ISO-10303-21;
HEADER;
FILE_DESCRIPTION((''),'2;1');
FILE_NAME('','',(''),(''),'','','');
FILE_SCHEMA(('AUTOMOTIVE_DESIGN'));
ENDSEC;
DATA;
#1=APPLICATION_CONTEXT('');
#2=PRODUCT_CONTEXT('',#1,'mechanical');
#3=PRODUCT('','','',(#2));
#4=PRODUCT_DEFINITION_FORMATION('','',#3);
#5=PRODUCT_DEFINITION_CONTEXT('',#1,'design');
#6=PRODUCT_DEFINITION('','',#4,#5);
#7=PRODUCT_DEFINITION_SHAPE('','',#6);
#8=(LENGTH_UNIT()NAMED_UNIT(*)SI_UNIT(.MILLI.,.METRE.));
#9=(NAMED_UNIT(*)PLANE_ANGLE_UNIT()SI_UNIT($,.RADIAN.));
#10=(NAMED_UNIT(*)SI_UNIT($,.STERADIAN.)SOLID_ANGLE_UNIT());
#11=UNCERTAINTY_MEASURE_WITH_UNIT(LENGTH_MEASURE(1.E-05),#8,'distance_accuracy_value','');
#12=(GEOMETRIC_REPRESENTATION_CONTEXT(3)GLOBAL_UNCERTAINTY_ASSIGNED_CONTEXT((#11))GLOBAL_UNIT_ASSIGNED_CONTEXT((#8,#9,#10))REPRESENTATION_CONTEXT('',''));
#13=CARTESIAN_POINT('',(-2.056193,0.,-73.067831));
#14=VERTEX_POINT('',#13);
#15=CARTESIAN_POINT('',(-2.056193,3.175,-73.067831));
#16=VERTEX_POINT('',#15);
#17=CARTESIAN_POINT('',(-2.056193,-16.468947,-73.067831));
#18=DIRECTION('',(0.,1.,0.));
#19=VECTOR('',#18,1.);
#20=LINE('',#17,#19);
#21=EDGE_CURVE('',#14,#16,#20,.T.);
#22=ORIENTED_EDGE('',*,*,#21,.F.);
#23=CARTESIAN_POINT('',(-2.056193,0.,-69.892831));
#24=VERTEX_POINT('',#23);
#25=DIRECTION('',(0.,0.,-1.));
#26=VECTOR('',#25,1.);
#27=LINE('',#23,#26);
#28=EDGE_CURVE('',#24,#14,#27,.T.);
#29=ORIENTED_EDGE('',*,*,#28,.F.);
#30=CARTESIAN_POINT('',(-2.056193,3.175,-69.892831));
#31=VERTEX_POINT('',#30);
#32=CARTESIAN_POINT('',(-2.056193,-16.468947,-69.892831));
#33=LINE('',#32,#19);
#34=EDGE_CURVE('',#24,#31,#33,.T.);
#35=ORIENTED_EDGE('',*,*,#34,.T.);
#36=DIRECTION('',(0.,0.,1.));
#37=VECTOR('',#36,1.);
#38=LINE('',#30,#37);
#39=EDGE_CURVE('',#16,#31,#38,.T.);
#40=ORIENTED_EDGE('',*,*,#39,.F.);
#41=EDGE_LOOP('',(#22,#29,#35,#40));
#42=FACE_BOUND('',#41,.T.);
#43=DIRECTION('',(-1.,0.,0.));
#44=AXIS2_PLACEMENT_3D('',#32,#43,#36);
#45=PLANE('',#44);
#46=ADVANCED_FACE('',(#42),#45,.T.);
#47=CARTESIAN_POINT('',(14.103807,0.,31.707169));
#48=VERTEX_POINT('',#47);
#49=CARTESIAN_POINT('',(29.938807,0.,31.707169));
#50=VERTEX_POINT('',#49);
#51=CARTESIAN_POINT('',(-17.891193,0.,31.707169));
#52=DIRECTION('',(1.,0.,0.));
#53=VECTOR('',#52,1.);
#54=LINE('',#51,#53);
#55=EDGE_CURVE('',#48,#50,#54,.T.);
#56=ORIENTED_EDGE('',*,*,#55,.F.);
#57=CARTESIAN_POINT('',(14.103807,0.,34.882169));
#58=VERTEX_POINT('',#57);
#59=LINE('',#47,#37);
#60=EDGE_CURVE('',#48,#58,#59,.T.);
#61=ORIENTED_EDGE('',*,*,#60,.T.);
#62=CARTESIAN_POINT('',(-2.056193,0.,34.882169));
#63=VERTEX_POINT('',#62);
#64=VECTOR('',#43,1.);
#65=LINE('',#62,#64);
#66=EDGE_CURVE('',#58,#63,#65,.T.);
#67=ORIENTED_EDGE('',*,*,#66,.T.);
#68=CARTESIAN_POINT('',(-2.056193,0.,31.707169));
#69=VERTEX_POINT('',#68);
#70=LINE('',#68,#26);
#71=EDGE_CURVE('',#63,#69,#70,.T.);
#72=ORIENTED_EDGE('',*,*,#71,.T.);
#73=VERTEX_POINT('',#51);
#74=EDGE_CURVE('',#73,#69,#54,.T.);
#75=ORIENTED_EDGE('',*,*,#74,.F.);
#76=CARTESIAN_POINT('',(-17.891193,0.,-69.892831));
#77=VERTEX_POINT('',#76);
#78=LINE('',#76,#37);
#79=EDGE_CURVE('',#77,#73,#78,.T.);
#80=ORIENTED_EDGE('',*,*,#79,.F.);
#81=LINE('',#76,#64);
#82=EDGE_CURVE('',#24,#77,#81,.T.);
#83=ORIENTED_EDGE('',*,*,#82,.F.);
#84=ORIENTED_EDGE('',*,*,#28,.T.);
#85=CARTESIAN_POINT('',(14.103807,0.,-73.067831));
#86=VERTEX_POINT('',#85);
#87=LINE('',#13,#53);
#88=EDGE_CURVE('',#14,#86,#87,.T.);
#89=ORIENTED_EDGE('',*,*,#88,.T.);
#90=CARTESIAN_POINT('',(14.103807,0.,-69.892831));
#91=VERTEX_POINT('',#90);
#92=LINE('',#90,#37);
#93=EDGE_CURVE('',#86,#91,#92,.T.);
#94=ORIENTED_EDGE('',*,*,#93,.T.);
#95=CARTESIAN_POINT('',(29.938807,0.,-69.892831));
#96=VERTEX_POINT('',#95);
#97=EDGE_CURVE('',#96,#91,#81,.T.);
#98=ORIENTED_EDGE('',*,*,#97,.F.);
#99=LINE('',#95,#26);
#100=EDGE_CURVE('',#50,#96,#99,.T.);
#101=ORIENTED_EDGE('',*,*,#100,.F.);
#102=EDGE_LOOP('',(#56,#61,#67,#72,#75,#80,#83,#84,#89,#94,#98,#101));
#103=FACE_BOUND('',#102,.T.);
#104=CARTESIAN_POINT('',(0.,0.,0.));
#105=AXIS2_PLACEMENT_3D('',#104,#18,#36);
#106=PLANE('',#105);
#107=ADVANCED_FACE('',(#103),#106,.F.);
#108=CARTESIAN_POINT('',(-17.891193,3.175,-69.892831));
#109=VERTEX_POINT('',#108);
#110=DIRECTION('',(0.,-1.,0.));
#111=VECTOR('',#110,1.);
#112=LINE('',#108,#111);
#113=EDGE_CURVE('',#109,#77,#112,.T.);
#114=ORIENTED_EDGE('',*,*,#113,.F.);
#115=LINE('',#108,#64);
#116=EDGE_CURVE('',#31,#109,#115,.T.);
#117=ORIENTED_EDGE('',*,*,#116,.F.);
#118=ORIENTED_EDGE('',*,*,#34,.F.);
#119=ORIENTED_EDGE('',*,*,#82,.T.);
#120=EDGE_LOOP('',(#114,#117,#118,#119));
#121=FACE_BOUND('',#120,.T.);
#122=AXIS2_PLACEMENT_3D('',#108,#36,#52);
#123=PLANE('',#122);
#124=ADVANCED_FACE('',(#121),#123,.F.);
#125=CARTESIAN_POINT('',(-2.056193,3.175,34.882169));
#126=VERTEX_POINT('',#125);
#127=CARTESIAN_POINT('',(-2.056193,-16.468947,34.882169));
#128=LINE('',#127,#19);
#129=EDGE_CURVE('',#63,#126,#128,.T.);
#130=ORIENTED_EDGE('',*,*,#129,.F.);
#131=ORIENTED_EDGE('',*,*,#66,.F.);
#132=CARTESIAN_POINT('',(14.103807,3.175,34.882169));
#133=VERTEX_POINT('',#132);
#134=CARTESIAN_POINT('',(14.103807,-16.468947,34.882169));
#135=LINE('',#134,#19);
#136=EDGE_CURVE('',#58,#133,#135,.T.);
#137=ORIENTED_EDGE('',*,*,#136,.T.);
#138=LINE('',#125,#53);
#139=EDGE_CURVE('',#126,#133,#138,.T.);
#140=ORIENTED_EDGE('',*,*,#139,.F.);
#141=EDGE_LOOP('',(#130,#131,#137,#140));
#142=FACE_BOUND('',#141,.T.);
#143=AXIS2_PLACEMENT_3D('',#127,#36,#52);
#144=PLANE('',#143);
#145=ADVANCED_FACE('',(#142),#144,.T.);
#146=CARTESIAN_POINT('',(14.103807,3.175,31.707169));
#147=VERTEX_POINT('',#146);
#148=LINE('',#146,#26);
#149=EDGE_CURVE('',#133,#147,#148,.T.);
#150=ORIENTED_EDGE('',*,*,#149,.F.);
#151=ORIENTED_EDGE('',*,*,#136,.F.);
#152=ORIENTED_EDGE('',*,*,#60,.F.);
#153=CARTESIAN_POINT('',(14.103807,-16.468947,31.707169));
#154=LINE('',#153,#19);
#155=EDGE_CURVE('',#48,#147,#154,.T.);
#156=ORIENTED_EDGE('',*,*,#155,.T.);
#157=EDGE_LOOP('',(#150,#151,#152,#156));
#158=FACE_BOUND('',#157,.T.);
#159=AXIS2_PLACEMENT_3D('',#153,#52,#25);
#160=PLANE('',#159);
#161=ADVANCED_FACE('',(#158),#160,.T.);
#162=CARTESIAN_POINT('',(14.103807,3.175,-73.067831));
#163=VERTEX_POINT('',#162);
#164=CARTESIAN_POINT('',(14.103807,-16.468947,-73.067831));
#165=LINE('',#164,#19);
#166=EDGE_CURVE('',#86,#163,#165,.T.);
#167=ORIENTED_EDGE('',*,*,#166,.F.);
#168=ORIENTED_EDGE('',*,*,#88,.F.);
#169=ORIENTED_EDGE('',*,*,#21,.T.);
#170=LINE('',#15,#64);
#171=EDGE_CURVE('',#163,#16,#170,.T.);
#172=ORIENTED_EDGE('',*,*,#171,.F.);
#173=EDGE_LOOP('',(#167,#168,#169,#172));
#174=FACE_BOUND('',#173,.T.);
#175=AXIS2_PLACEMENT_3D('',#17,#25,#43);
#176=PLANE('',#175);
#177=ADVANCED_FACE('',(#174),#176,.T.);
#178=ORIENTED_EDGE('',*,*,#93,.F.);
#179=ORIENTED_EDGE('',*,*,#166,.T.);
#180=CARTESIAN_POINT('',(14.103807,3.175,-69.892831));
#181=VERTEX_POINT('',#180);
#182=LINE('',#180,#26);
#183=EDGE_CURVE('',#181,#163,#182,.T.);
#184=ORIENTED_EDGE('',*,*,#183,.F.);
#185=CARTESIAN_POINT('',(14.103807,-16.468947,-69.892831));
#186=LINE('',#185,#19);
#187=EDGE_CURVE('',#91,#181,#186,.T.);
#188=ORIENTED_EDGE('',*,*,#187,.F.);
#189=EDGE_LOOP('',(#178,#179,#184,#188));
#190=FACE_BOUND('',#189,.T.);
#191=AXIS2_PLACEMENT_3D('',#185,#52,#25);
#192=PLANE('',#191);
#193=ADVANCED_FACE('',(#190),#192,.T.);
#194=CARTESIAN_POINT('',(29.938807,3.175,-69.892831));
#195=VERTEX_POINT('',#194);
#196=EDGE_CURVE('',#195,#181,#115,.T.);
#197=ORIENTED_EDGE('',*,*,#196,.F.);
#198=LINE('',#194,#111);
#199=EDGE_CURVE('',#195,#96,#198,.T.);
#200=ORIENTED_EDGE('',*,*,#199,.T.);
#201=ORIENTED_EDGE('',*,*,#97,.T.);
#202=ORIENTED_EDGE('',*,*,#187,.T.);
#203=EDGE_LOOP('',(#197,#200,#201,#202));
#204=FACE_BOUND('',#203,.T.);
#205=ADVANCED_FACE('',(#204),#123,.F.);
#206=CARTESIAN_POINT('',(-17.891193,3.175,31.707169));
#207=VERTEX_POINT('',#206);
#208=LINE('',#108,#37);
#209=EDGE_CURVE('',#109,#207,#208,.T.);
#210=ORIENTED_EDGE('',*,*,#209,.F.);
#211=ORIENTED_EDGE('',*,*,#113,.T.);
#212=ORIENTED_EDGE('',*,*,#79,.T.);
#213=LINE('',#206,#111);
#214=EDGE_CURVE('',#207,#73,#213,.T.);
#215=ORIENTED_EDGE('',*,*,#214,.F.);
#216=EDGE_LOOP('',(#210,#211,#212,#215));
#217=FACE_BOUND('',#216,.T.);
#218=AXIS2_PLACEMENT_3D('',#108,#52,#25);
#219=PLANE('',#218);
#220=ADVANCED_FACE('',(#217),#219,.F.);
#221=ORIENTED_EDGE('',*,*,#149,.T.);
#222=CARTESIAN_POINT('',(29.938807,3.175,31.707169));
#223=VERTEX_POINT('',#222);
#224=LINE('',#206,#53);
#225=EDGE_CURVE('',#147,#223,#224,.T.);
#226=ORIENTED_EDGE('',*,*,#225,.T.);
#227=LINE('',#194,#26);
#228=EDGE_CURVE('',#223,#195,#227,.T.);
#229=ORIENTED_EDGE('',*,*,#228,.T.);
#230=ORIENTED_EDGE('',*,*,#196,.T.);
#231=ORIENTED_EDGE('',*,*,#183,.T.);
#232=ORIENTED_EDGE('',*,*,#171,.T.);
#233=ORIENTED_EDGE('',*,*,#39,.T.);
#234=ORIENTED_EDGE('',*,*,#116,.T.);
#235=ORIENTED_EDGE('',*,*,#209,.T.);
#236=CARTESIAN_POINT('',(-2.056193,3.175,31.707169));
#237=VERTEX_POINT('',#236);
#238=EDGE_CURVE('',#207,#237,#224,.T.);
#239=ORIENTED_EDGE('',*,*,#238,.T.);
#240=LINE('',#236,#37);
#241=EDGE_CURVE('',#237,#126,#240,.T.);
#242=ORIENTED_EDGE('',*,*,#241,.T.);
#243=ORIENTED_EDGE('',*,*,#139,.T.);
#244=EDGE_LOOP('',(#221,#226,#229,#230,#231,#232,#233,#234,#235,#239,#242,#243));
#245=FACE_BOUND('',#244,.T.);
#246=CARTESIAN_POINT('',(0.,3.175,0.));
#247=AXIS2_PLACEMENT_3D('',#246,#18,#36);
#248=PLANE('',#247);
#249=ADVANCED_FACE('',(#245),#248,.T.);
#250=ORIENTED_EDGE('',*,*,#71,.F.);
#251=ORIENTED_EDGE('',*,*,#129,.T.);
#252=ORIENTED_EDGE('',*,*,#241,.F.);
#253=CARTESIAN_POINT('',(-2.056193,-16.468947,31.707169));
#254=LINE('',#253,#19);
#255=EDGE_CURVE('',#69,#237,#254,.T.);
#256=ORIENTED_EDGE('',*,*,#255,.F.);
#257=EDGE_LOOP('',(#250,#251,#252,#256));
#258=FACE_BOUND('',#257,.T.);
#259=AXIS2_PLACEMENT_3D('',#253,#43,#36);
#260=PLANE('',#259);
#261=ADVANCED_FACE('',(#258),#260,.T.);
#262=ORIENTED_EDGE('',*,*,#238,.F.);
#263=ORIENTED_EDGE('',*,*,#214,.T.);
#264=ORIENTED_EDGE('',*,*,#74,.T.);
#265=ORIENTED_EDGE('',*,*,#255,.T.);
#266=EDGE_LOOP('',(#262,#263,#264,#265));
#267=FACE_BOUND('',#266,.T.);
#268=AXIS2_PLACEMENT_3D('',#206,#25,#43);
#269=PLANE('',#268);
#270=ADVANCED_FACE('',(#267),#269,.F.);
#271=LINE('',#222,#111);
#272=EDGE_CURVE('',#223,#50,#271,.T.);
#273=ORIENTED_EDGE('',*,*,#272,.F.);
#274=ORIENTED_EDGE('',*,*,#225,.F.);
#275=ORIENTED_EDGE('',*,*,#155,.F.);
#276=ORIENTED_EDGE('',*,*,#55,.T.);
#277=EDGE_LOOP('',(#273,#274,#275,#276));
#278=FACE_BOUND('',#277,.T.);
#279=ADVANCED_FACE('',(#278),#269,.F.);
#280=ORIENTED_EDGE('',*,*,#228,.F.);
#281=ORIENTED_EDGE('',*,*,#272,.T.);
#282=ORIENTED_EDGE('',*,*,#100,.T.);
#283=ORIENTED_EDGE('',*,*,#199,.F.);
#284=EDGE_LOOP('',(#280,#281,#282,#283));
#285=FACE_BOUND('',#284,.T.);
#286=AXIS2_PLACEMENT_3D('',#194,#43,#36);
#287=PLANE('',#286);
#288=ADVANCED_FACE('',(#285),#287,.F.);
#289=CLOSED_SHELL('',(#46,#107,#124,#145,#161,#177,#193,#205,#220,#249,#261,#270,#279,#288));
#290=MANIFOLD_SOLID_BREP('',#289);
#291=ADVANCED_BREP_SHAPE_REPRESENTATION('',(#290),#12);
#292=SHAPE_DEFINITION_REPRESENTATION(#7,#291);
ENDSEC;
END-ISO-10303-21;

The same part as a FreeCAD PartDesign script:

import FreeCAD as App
import Part
import Sketcher

V = App.Vector
Q = App.Units.Quantity


def add_polygon(sketch, points):
    """Adds a closed chain of lines whose ends are joined by coincident constraints."""
    first, n = sketch.GeometryCount, len(points)
    for a, b in zip(points, points[1:] + points[:1]):
        sketch.addGeometry(Part.LineSegment(App.Vector(*a, 0), App.Vector(*b, 0)), False)
    for i in range(n):
        sketch.addConstraint(Sketcher.Constraint("Coincident", first + i, 2, first + (i + 1) % n, 1))

doc = App.newDocument("Part")
body = doc.addObject("PartDesign::Body", "Body")

sketch1 = doc.addObject("Sketcher::SketchObject", "Sketch")
body.addObject(sketch1)
sketch1.AttachmentSupport = (doc.XZ_Plane, [""])
sketch1.MapMode = "FlatFace"
add_polygon(sketch1, [(-18, -70), (-18, 32), (30, 32), (30, -70)])
sketch1.addConstraint([
    Sketcher.Constraint("Vertical", 0),
    Sketcher.Constraint("Horizontal", 1),
    Sketcher.Constraint("Vertical", 2),
    Sketcher.Constraint("Horizontal", 3),
    Sketcher.Constraint("DistanceY", 0, 1, 0, 2, Q("4 in")),
    Sketcher.Constraint("DistanceX", 1, 1, 1, 2, 47.83),
    Sketcher.Constraint("DistanceY", -1, 1, 0, 2, 31.707169),
    Sketcher.Constraint("DistanceX", 0, 2, -1, 1, 17.891193),
])
pad1 = doc.addObject("PartDesign::Pad", "Pad")
body.addObject(pad1)
pad1.Profile = sketch1
pad1.Length = Q("0.125 in")
pad1.Reversed = True

sketch2 = doc.addObject("Sketcher::SketchObject", "Sketch001")
body.addObject(sketch2)
sketch2.AttachmentSupport = (doc.XZ_Plane, [""])
sketch2.MapMode = "FlatFace"
sketch2.AttachmentOffset = App.Placement(V(0, 0, -0.125 * 25.4), App.Rotation())
add_polygon(sketch2, [(-2.1, -73.1), (-2.1, -69.9), (14.1, -69.9), (14.1, -73.1)])
add_polygon(sketch2, [(-2.1, 31.7), (-2.1, 34.9), (14.1, 34.9), (14.1, 31.7)])
sketch2.addConstraint([
    Sketcher.Constraint("Vertical", 0),
    Sketcher.Constraint("Horizontal", 1),
    Sketcher.Constraint("Vertical", 2),
    Sketcher.Constraint("Horizontal", 3),
    Sketcher.Constraint("Vertical", 4),
    Sketcher.Constraint("Horizontal", 5),
    Sketcher.Constraint("Vertical", 6),
    Sketcher.Constraint("Horizontal", 7),
    Sketcher.Constraint("Vertical", 3, 2, 4, 2),
    Sketcher.Constraint("Vertical", 2, 2, 5, 2),
    Sketcher.Constraint("Equal", 2, 4),
    Sketcher.Constraint("DistanceY", 1, 2, 6, 2, Q("4 in")),
    Sketcher.Constraint("DistanceY", 0, 1, 0, 2, Q("0.125 in")),
    Sketcher.Constraint("DistanceX", 1, 1, 1, 2, 16.16),
    Sketcher.Constraint("DistanceY", 0, 2, -1, 1, 69.892831),
    Sketcher.Constraint("DistanceX", 0, 2, -1, 1, 2.056193),
])
pad2 = doc.addObject("PartDesign::Pad", "Pad001")
body.addObject(pad2)
pad2.Profile = sketch2
pad2.Length = Q("0.125 in")

doc.recompute()
